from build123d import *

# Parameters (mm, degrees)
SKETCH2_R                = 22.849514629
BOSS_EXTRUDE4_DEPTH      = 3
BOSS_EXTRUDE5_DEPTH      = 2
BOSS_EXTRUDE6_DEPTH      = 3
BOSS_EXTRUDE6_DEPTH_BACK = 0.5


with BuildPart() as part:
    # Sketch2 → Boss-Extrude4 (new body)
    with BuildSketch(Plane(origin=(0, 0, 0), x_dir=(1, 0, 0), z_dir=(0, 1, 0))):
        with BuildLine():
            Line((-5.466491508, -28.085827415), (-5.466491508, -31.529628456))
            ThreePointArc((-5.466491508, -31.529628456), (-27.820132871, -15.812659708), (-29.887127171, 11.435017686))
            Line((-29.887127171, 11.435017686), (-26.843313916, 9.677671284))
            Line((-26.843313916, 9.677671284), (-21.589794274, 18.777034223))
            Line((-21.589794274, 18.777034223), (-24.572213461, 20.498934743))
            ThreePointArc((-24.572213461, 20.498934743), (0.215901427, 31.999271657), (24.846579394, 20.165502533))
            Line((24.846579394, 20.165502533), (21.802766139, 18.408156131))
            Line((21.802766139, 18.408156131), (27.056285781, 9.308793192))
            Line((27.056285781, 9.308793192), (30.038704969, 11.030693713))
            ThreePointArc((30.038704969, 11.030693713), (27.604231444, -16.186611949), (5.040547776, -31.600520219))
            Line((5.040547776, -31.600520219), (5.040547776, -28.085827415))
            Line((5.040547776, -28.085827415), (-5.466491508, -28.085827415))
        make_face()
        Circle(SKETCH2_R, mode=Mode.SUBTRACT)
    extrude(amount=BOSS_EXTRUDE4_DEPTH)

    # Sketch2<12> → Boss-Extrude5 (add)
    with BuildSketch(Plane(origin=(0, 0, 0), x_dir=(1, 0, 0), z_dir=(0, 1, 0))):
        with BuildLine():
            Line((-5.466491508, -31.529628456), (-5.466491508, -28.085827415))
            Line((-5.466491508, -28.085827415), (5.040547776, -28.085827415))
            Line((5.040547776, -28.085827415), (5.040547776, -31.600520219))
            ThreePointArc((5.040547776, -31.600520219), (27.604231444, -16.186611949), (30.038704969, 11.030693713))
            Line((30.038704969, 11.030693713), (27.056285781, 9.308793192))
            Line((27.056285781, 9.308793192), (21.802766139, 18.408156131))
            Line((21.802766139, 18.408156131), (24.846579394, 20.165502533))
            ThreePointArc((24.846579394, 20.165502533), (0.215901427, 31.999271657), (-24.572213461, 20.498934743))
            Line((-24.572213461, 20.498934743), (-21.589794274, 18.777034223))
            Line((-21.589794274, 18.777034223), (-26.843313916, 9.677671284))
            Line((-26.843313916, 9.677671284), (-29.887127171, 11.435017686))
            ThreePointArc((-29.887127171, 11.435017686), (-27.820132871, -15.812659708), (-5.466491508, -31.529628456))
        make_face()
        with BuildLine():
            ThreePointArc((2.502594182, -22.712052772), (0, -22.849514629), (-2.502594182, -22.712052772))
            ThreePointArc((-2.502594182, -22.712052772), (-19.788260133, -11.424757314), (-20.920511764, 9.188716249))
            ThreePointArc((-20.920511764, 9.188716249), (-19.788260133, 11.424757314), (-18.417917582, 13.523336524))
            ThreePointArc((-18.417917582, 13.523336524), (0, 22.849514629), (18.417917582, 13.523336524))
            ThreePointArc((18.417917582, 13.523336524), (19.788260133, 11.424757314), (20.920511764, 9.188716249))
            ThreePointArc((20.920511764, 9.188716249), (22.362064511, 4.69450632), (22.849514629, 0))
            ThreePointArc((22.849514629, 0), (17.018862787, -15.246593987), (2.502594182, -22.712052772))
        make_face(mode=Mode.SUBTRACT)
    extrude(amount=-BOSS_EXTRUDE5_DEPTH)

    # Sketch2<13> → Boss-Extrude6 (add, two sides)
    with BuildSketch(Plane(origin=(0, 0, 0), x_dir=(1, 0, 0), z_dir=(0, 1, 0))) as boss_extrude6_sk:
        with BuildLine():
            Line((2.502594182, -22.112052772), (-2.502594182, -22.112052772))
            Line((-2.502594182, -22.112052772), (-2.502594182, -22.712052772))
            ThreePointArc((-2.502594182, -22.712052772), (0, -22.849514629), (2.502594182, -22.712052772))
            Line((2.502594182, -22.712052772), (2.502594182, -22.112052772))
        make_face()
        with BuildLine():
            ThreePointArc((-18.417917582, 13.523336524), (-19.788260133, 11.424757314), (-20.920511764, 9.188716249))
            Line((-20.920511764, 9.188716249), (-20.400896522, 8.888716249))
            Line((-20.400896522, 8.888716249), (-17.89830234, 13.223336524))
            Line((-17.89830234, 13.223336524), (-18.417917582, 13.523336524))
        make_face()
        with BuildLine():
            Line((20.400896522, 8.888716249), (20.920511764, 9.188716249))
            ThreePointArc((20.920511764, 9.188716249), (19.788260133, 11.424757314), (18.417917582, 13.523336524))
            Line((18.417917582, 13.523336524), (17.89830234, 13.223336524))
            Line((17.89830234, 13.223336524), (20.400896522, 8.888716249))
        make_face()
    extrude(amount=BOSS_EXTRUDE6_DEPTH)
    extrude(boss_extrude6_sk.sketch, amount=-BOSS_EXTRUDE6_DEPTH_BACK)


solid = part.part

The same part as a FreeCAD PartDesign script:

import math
import FreeCAD as App
import Part
import Sketcher
Q = App.Units.Quantity

doc = App.newDocument("Part")
body = doc.addObject("PartDesign::Body", "Body")

sketch1 = body.newObject("Sketcher::SketchObject", "Sketch")
sketch1.AttachmentSupport = (doc.getObject("XZ_Plane"), [""])
sketch1.MapMode = "FlatFace"
sketch1.addGeometry(Part.LineSegment(App.Vector(-5.466492, 31.529628, 0), App.Vector(-5.466492, 28.085827, 0)), False)
sketch1.addGeometry(Part.LineSegment(App.Vector(-5.466492, 28.085827, 0), App.Vector(5.040548, 28.085827, 0)), False)
sketch1.addGeometry(Part.LineSegment(App.Vector(5.040548, 28.085827, 0), App.Vector(5.040548, 31.60052, 0)), False)
sketch1.addGeometry(Part.ArcOfCircle(Part.Circle(App.Vector(0, 0, 0), App.Vector(0, 0, 1), 32), math.radians(-20.164044), math.radians(80.93719)), False)
sketch1.addGeometry(Part.LineSegment(App.Vector(30.038705, -11.030694, 0), App.Vector(27.056286, -9.308793, 0)), False)
sketch1.addGeometry(Part.LineSegment(App.Vector(27.056286, -9.308793, 0), App.Vector(21.802766, -18.408156, 0)), False)
sketch1.addGeometry(Part.LineSegment(App.Vector(21.802766, -18.408156, 0), App.Vector(24.846579, -20.165503, 0)), False)
sketch1.addGeometry(Part.ArcOfCircle(Part.Circle(App.Vector(0, 0, 0), App.Vector(0, 0, 1), 32), math.radians(-140.164044), math.radians(-39.06281)), False)
sketch1.addGeometry(Part.LineSegment(App.Vector(-24.572213, -20.498935, 0), App.Vector(-21.589794, -18.777034, 0)), False)
sketch1.addGeometry(Part.LineSegment(App.Vector(-21.589794, -18.777034, 0), App.Vector(-26.843314, -9.677671, 0)), False)
sketch1.addGeometry(Part.LineSegment(App.Vector(-26.843314, -9.677671, 0), App.Vector(-29.887127, -11.435018, 0)), False)
sketch1.addGeometry(Part.ArcOfCircle(Part.Circle(App.Vector(0, 0, 0), App.Vector(0, 0, 1), 32), math.radians(99.835956), math.radians(200.93719)), False)
sketch1.addGeometry(Part.Circle(App.Vector(0, 0, 0), App.Vector(0, 0, 1), 22.849515), False)
sketch1.addConstraint(Sketcher.Constraint("Coincident", 0, 2, 1, 1))
sketch1.addConstraint(Sketcher.Constraint("Coincident", 1, 2, 2, 1))
sketch1.addConstraint(Sketcher.Constraint("Coincident", 2, 2, 3, 2))
sketch1.addConstraint(Sketcher.Constraint("Coincident", 3, 1, 4, 1))
sketch1.addConstraint(Sketcher.Constraint("Coincident", 4, 2, 5, 1))
sketch1.addConstraint(Sketcher.Constraint("Coincident", 5, 2, 6, 1))
sketch1.addConstraint(Sketcher.Constraint("Coincident", 6, 2, 7, 2))
sketch1.addConstraint(Sketcher.Constraint("Coincident", 7, 1, 8, 1))
sketch1.addConstraint(Sketcher.Constraint("Coincident", 8, 2, 9, 1))
sketch1.addConstraint(Sketcher.Constraint("Coincident", 9, 2, 10, 1))
sketch1.addConstraint(Sketcher.Constraint("Coincident", 10, 2, 11, 2))
sketch1.addConstraint(Sketcher.Constraint("Coincident", 11, 1, 0, 1))
sketch1.addConstraint(Sketcher.Constraint("Vertical", 0))
sketch1.addConstraint(Sketcher.Constraint("Horizontal", 1))
sketch1.addConstraint(Sketcher.Constraint("Vertical", 2))
sketch1.addConstraint(Sketcher.Constraint("Coincident", 3, 3, -1, 1))
sketch1.addConstraint(Sketcher.Constraint("Coincident", 7, 3, -1, 1))
sketch1.addConstraint(Sketcher.Constraint("Coincident", 11, 3, -1, 1))
sketch1.addConstraint(Sketcher.Constraint("Coincident", 12, 3, -1, 1))
sketch1.addConstraint(Sketcher.Constraint("Equal", 3, 7))
sketch1.addConstraint(Sketcher.Constraint("Equal", 7, 11))
sketch1.addConstraint(Sketcher.Constraint("Perpendicular", 4, 5))
sketch1.addConstraint(Sketcher.Constraint("Perpendicular", 5, 6))
sketch1.addConstraint(Sketcher.Constraint("Perpendicular", 8, 9))
sketch1.addConstraint(Sketcher.Constraint("Perpendicular", 9, 10))
sketch1.addConstraint(Sketcher.Constraint("Equal", 4, 8))
sketch1.addConstraint(Sketcher.Constraint("Equal", 5, 9))
sketch1.addConstraint(Sketcher.Constraint("Equal", 6, 10))
sketch1.addConstraint(Sketcher.Constraint("Radius", 3, Q("32 mm")))
sketch1.addConstraint(Sketcher.Constraint("Angle", 4, Q("150 deg")))
sketch1.addConstraint(Sketcher.Constraint("Angle", 8, Q("30 deg")))
sketch1.addConstraint(Sketcher.Constraint("Diameter", 12, Q("45.699029 mm")))
sketch1.addConstraint(Sketcher.Constraint("DistanceY", 0, 2, 0, 1, Q("3.443801 mm")))
sketch1.addConstraint(Sketcher.Constraint("Distance", 4, Q("3.443801 mm")))
sketch1.addConstraint(Sketcher.Constraint("DistanceX", 1, 1, 1, 2, Q("10.507039 mm")))
sketch1.addConstraint(Sketcher.Constraint("DistanceX", 9, 2, 7, 1, Q("2.2711 mm")))
sketch1.addConstraint(Sketcher.Constraint("DistanceY", 2, 1, 2, 2, Q("3.514693 mm")))
sketch1.addConstraint(Sketcher.Constraint("DistanceX", -1, 1, 6, 2, Q("24.846579 mm")))
pad1 = body.newObject("PartDesign::Pad", "Pad")
pad1.Profile = sketch1
pad1.Length = 3
pad1.Reversed = True

sketch2 = body.newObject("Sketcher::SketchObject", "Sketch001")
sketch2.AttachmentSupport = (doc.getObject("XZ_Plane"), [""])
sketch2.MapMode = "FlatFace"
sketch2.addGeometry(Part.LineSegment(App.Vector(-5.466492, 31.529628, 0), App.Vector(-5.466492, 28.085827, 0)), False)
sketch2.addGeometry(Part.LineSegment(App.Vector(-5.466492, 28.085827, 0), App.Vector(5.040548, 28.085827, 0)), False)
sketch2.addGeometry(Part.LineSegment(App.Vector(5.040548, 28.085827, 0), App.Vector(5.040548, 31.60052, 0)), False)
sketch2.addGeometry(Part.ArcOfCircle(Part.Circle(App.Vector(0, 0, 0), App.Vector(0, 0, 1), 32), math.radians(-20.164044), math.radians(80.93719)), False)
sketch2.addGeometry(Part.LineSegment(App.Vector(30.038705, -11.030694, 0), App.Vector(27.056286, -9.308793, 0)), False)
sketch2.addGeometry(Part.LineSegment(App.Vector(27.056286, -9.308793, 0), App.Vector(21.802766, -18.408156, 0)), False)
sketch2.addGeometry(Part.LineSegment(App.Vector(21.802766, -18.408156, 0), App.Vector(24.846579, -20.165503, 0)), False)
sketch2.addGeometry(Part.ArcOfCircle(Part.Circle(App.Vector(0, 0, 0), App.Vector(0, 0, 1), 32), math.radians(-140.164044), math.radians(-39.06281)), False)
sketch2.addGeometry(Part.LineSegment(App.Vector(-24.572213, -20.498935, 0), App.Vector(-21.589794, -18.777034, 0)), False)
sketch2.addGeometry(Part.LineSegment(App.Vector(-21.589794, -18.777034, 0), App.Vector(-26.843314, -9.677671, 0)), False)
sketch2.addGeometry(Part.LineSegment(App.Vector(-26.843314, -9.677671, 0), App.Vector(-29.887127, -11.435018, 0)), False)
sketch2.addGeometry(Part.ArcOfCircle(Part.Circle(App.Vector(0, 0, 0), App.Vector(0, 0, 1), 32), math.radians(99.835956), math.radians(200.93719)), False)
sketch2.addGeometry(Part.ArcOfCircle(Part.Circle(App.Vector(0, 0, 0), App.Vector(0, 0, 1), 22.849515), math.radians(0), math.radians(83.712063)), False)
sketch2.addGeometry(Part.ArcOfCircle(Part.Circle(App.Vector(0, 0, 0), App.Vector(0, 0, 1), 22.849515), math.radians(83.712063), math.radians(96.287937)), False)
sketch2.addGeometry(Part.ArcOfCircle(Part.Circle(App.Vector(0, 0, 0), App.Vector(0, 0, 1), 22.849515), math.radians(96.287937), math.radians(203.712063)), False)
sketch2.addGeometry(Part.ArcOfCircle(Part.Circle(App.Vector(0, 0, 0), App.Vector(0, 0, 1), 22.849515), math.radians(-156.287937), math.radians(-143.712063)), False)
sketch2.addGeometry(Part.ArcOfCircle(Part.Circle(App.Vector(0, 0, 0), App.Vector(0, 0, 1), 22.849515), math.radians(-143.712063), math.radians(-36.287937)), False)
sketch2.addGeometry(Part.ArcOfCircle(Part.Circle(App.Vector(0, 0, 0), App.Vector(0, 0, 1), 22.849515), math.radians(-36.287937), math.radians(-23.712063)), False)
sketch2.addGeometry(Part.ArcOfCircle(Part.Circle(App.Vector(0, 0, 0), App.Vector(0, 0, 1), 22.849515), math.radians(-23.712063), math.radians(0)), False)
sketch2.addConstraint(Sketcher.Constraint("Coincident", 0, 2, 1, 1))
sketch2.addConstraint(Sketcher.Constraint("Coincident", 1, 2, 2, 1))
sketch2.addConstraint(Sketcher.Constraint("Coincident", 2, 2, 3, 2))
sketch2.addConstraint(Sketcher.Constraint("Coincident", 3, 1, 4, 1))
sketch2.addConstraint(Sketcher.Constraint("Coincident", 4, 2, 5, 1))
sketch2.addConstraint(Sketcher.Constraint("Coincident", 5, 2, 6, 1))
sketch2.addConstraint(Sketcher.Constraint("Coincident", 6, 2, 7, 2))
sketch2.addConstraint(Sketcher.Constraint("Coincident", 7, 1, 8, 1))
sketch2.addConstraint(Sketcher.Constraint("Coincident", 8, 2, 9, 1))
sketch2.addConstraint(Sketcher.Constraint("Coincident", 9, 2, 10, 1))
sketch2.addConstraint(Sketcher.Constraint("Coincident", 10, 2, 11, 2))
sketch2.addConstraint(Sketcher.Constraint("Coincident", 11, 1, 0, 1))
sketch2.addConstraint(Sketcher.Constraint("Tangent", 12, 2, 13, 1))
sketch2.addConstraint(Sketcher.Constraint("Tangent", 13, 2, 14, 1))
sketch2.addConstraint(Sketcher.Constraint("Tangent", 14, 2, 15, 1))
sketch2.addConstraint(Sketcher.Constraint("Tangent", 15, 2, 16, 1))
sketch2.addConstraint(Sketcher.Constraint("Tangent", 16, 2, 17, 1))
sketch2.addConstraint(Sketcher.Constraint("Tangent", 17, 2, 18, 1))
sketch2.addConstraint(Sketcher.Constraint("Tangent", 18, 2, 12, 1))
sketch2.addConstraint(Sketcher.Constraint("Vertical", 0))
sketch2.addConstraint(Sketcher.Constraint("Horizontal", 1))
sketch2.addConstraint(Sketcher.Constraint("Vertical", 2))
sketch2.addConstraint(Sketcher.Constraint("Coincident", 3, 3, -1, 1))
sketch2.addConstraint(Sketcher.Constraint("Coincident", 7, 3, -1, 1))
sketch2.addConstraint(Sketcher.Constraint("Coincident", 11, 3, -1, 1))
sketch2.addConstraint(Sketcher.Constraint("Coincident", 12, 3, -1, 1))
sketch2.addConstraint(Sketcher.Constraint("Coincident", 14, 3, -1, 1))
sketch2.addConstraint(Sketcher.Constraint("Coincident", 16, 3, -1, 1))
sketch2.addConstraint(Sketcher.Constraint("Equal", 3, 7))
sketch2.addConstraint(Sketcher.Constraint("Equal", 7, 11))
sketch2.addConstraint(Sketcher.Constraint("PointOnObject", 18, 2, -1))
sketch2.addConstraint(Sketcher.Constraint("Perpendicular", 4, 5))
sketch2.addConstraint(Sketcher.Constraint("Perpendicular", 5, 6))
sketch2.addConstraint(Sketcher.Constraint("Perpendicular", 8, 9))
sketch2.addConstraint(Sketcher.Constraint("Perpendicular", 9, 10))
sketch2.addConstraint(Sketcher.Constraint("Horizontal", 12, 2, 13, 2))
sketch2.addConstraint(Sketcher.Constraint("Horizontal", 15, 2, 16, 2))
sketch2.addConstraint(Sketcher.Constraint("Horizontal", 14, 2, 17, 2))
sketch2.addConstraint(Sketcher.Constraint("Equal", 4, 8))
sketch2.addConstraint(Sketcher.Constraint("Equal", 5, 9))
sketch2.addConstraint(Sketcher.Constraint("Equal", 6, 10))
sketch2.addConstraint(Sketcher.Constraint("Radius", 3, Q("32 mm")))
sketch2.addConstraint(Sketcher.Constraint("Angle", 4, Q("150 deg")))
sketch2.addConstraint(Sketcher.Constraint("Angle", 8, Q("30 deg")))
sketch2.addConstraint(Sketcher.Constraint("DistanceY", 0, 2, 0, 1, Q("3.443801 mm")))
sketch2.addConstraint(Sketcher.Constraint("Radius", 12, Q("22.849515 mm")))
sketch2.addConstraint(Sketcher.Constraint("Distance", 4, Q("3.443801 mm")))
sketch2.addConstraint(Sketcher.Constraint("DistanceX", 1, 1, 1, 2, Q("10.507039 mm")))
sketch2.addConstraint(Sketcher.Constraint("DistanceX", 9, 2, 7, 1, Q("2.2711 mm")))
sketch2.addConstraint(Sketcher.Constraint("DistanceY", 10, 2, 14, 2, Q("2.246301 mm")))
sketch2.addConstraint(Sketcher.Constraint("DistanceX", 7, 1, 14, 2, Q("3.651702 mm")))
sketch2.addConstraint(Sketcher.Constraint("DistanceY", 7, 1, 15, 2, Q("6.975598 mm")))
sketch2.addConstraint(Sketcher.Constraint("DistanceY", 2, 1, 2, 2, Q("3.514693 mm")))
sketch2.addConstraint(Sketcher.Constraint("DistanceX", 13, 2, 12, 2, Q("5.005188 mm")))
pad2 = body.newObject("PartDesign::Pad", "Pad001")
pad2.Profile = sketch2
pad2.Length = 2

sketch3 = body.newObject("Sketcher::SketchObject", "Sketch002")
sketch3.AttachmentSupport = (doc.getObject("XZ_Plane"), [""])
sketch3.MapMode = "FlatFace"
sketch3.addGeometry(Part.LineSegment(App.Vector(2.502594, 22.112053, 0), App.Vector(-2.502594, 22.112053, 0)), False)
sketch3.addGeometry(Part.LineSegment(App.Vector(-2.502594, 22.112053, 0), App.Vector(-2.502594, 22.712053, 0)), False)
sketch3.addGeometry(Part.ArcOfCircle(Part.Circle(App.Vector(0, 0, 0), App.Vector(0, 0, 1), 22.849515), math.radians(83.712063), math.radians(96.287937)), False)
sketch3.addGeometry(Part.LineSegment(App.Vector(2.502594, 22.712053, 0), App.Vector(2.502594, 22.112053, 0)), False)
sketch3.addGeometry(Part.ArcOfCircle(Part.Circle(App.Vector(0, 0, 0), App.Vector(0, 0, 1), 22.849515), math.radians(-156.287937), math.radians(-143.712063)), False)
sketch3.addGeometry(Part.LineSegment(App.Vector(-20.920512, -9.188716, 0), App.Vector(-20.400897, -8.888716, 0)), False)
sketch3.addGeometry(Part.LineSegment(App.Vector(-20.400897, -8.888716, 0), App.Vector(-17.898302, -13.223337, 0)), False)
sketch3.addGeometry(Part.LineSegment(App.Vector(-17.898302, -13.223337, 0), App.Vector(-18.417918, -13.523337, 0)), False)
sketch3.addGeometry(Part.LineSegment(App.Vector(20.400897, -8.888716, 0), App.Vector(20.920512, -9.188716, 0)), False)
sketch3.addGeometry(Part.ArcOfCircle(Part.Circle(App.Vector(0, 0, 0), App.Vector(0, 0, 1), 22.849515), math.radians(-36.287937), math.radians(-23.712063)), False)
sketch3.addGeometry(Part.LineSegment(App.Vector(18.417918, -13.523337, 0), App.Vector(17.898302, -13.223337, 0)), False)
sketch3.addGeometry(Part.LineSegment(App.Vector(17.898302, -13.223337, 0), App.Vector(20.400897, -8.888716, 0)), False)
sketch3.addConstraint(Sketcher.Constraint("Coincident", 0, 2, 1, 1))
sketch3.addConstraint(Sketcher.Constraint("Coincident", 1, 2, 2, 2))
sketch3.addConstraint(Sketcher.Constraint("Coincident", 2, 1, 3, 1))
sketch3.addConstraint(Sketcher.Constraint("Coincident", 3, 2, 0, 1))
sketch3.addConstraint(Sketcher.Constraint("Coincident", 4, 1, 5, 1))
sketch3.addConstraint(Sketcher.Constraint("Coincident", 5, 2, 6, 1))
sketch3.addConstraint(Sketcher.Constraint("Coincident", 6, 2, 7, 1))
sketch3.addConstraint(Sketcher.Constraint("Coincident", 7, 2, 4, 2))
sketch3.addConstraint(Sketcher.Constraint("Coincident", 8, 2, 9, 2))
sketch3.addConstraint(Sketcher.Constraint("Coincident", 9, 1, 10, 1))
sketch3.addConstraint(Sketcher.Constraint("Coincident", 10, 2, 11, 1))
sketch3.addConstraint(Sketcher.Constraint("Coincident", 11, 2, 8, 1))
sketch3.addConstraint(Sketcher.Constraint("Horizontal", 0))
sketch3.addConstraint(Sketcher.Constraint("Vertical", 1))
sketch3.addConstraint(Sketcher.Constraint("Vertical", 3))
sketch3.addConstraint(Sketcher.Constraint("Coincident", 2, 3, -1, 1))
sketch3.addConstraint(Sketcher.Constraint("Coincident", 4, 3, -1, 1))
sketch3.addConstraint(Sketcher.Constraint("Coincident", 9, 3, -1, 1))
sketch3.addConstraint(Sketcher.Constraint("Equal", 2, 4))
sketch3.addConstraint(Sketcher.Constraint("Equal", 4, 9))
sketch3.addConstraint(Sketcher.Constraint("Symmetric", 6, 2, 10, 2, -2))
sketch3.addConstraint(Sketcher.Constraint("Symmetric", 5, 2, 11, 2, -2))
sketch3.addConstraint(Sketcher.Constraint("Perpendicular", 5, 6))
sketch3.addConstraint(Sketcher.Constraint("Perpendicular", 6, 7))
sketch3.addConstraint(Sketcher.Constraint("Parallel", 8, 10))
sketch3.addConstraint(Sketcher.Constraint("Perpendicular", 10, 11))
sketch3.addConstraint(Sketcher.Constraint("Horizontal", 1, 2, 2, 1))
sketch3.addConstraint(Sketcher.Constraint("Equal", 5, 7))
sketch3.addConstraint(Sketcher.Constraint("Angle", 5, Q("30 deg")))
sketch3.addConstraint(Sketcher.Constraint("DistanceY", 1, 1, 1, 2, Q("0.6 mm")))
sketch3.addConstraint(Sketcher.Constraint("Distance", 5, Q("0.6 mm")))
sketch3.addConstraint(Sketcher.Constraint("Radius", 2, Q("22.849515 mm")))
sketch3.addConstraint(Sketcher.Constraint("DistanceX", 0, 2, 0, 1, Q("5.005188 mm")))
sketch3.addConstraint(Sketcher.Constraint("Distance", 6, Q("5.005188 mm")))
pad3 = body.newObject("PartDesign::Pad", "Pad002")
pad3.Profile = sketch3
pad3.Type = "TwoLengths"
pad3.Length = 3
pad3.Length2 = 0.5
pad3.Reversed = True

doc.recompute()
